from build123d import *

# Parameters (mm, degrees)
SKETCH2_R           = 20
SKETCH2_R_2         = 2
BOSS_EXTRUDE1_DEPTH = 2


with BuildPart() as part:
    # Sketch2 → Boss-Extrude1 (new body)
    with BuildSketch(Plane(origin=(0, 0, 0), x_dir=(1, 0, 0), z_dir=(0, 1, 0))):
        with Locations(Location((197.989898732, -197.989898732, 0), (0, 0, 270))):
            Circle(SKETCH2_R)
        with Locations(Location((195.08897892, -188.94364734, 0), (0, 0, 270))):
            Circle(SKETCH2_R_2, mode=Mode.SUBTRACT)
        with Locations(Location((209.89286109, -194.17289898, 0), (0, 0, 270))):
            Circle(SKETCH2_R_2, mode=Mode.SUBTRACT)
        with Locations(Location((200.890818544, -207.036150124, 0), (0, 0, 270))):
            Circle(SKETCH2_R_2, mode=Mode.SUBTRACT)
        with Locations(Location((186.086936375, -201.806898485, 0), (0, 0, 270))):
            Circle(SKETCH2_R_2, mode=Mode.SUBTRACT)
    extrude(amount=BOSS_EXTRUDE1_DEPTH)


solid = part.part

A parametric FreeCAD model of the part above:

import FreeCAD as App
import Part
import Sketcher
Q = App.Units.Quantity

doc = App.newDocument("Part")
params = doc.addObject("Spreadsheet::Sheet", "Params")
for row, (alias, value) in enumerate([
    ("sketch1_diameter", "40 mm"),
    ("sketch1_diameter2", "4 mm"),
    ("pad1_length", "2 mm"),
], start=1):
    params.set(f"A{row}", alias)
    params.set(f"B{row}", "=" + value)
    params.setAlias(f"B{row}", alias)

body = doc.addObject("PartDesign::Body", "Body")

sketch1 = body.newObject("Sketcher::SketchObject", "Sketch")
sketch1.AttachmentSupport = (doc.getObject("XZ_Plane"), [""])
sketch1.MapMode = "FlatFace"
sketch1.addGeometry(Part.Circle(App.Vector(197.989899, 197.989899, 0), App.Vector(0, 0, 1), 20), False)
sketch1.addGeometry(Part.Circle(App.Vector(195.088979, 188.943647, 0), App.Vector(0, 0, 1), 2), False)
sketch1.addGeometry(Part.Circle(App.Vector(186.086936, 201.806898, 0), App.Vector(0, 0, 1), 2), False)
sketch1.addGeometry(Part.Circle(App.Vector(209.892861, 194.172899, 0), App.Vector(0, 0, 1), 2), False)
sketch1.addGeometry(Part.Circle(App.Vector(200.890819, 207.03615, 0), App.Vector(0, 0, 1), 2), False)
sketch1.addConstraint(Sketcher.Constraint("Equal", 1, 2))
sketch1.addConstraint(Sketcher.Constraint("Equal", 2, 3))
sketch1.addConstraint(Sketcher.Constraint("Equal", 3, 4))
sketch1.addConstraint(Sketcher.Constraint("Diameter", 0, Q("40 mm")))
sketch1.addConstraint(Sketcher.Constraint("Diameter", 1, Q("4 mm")))
sketch1.addConstraint(Sketcher.Constraint("DistanceY", 0, 3, 2, 3, Q("3.817 mm")))
sketch1.addConstraint(Sketcher.Constraint("DistanceY", 3, 3, 0, 3, Q("3.817 mm")))
sketch1.addConstraint(Sketcher.Constraint("DistanceX", -1, 1, 0, 3, Q("197.989899 mm")))
sketch1.addConstraint(Sketcher.Constraint("DistanceY", -1, 1, 0, 3, Q("197.989899 mm")))
sketch1.addConstraint(Sketcher.Constraint("DistanceX", -1, 1, 1, 3, Q("195.088979 mm")))
sketch1.addConstraint(Sketcher.Constraint("DistanceX", -1, 1, 3, 3, Q("209.892861 mm")))
sketch1.addConstraint(Sketcher.Constraint("DistanceX", -1, 1, 4, 3, Q("200.890819 mm")))
sketch1.addConstraint(Sketcher.Constraint("DistanceY", -1, 1, 4, 3, Q("207.03615 mm")))
sketch1.addConstraint(Sketcher.Constraint("DistanceY", 1, 3, 0, 3, Q("9.046251 mm")))
sketch1.addConstraint(Sketcher.Constraint("DistanceX", -1, 1, 2, 3, Q("186.086936 mm")))
sketch1.setExpression("Constraints[3]", "Params.sketch1_diameter")
sketch1.setExpression("Constraints[4]", "Params.sketch1_diameter2")
pad1 = body.newObject("PartDesign::Pad", "Pad")
pad1.Profile = sketch1
pad1.setExpression("Length", "Params.pad1_length")
pad1.Reversed = True

doc.recompute()
